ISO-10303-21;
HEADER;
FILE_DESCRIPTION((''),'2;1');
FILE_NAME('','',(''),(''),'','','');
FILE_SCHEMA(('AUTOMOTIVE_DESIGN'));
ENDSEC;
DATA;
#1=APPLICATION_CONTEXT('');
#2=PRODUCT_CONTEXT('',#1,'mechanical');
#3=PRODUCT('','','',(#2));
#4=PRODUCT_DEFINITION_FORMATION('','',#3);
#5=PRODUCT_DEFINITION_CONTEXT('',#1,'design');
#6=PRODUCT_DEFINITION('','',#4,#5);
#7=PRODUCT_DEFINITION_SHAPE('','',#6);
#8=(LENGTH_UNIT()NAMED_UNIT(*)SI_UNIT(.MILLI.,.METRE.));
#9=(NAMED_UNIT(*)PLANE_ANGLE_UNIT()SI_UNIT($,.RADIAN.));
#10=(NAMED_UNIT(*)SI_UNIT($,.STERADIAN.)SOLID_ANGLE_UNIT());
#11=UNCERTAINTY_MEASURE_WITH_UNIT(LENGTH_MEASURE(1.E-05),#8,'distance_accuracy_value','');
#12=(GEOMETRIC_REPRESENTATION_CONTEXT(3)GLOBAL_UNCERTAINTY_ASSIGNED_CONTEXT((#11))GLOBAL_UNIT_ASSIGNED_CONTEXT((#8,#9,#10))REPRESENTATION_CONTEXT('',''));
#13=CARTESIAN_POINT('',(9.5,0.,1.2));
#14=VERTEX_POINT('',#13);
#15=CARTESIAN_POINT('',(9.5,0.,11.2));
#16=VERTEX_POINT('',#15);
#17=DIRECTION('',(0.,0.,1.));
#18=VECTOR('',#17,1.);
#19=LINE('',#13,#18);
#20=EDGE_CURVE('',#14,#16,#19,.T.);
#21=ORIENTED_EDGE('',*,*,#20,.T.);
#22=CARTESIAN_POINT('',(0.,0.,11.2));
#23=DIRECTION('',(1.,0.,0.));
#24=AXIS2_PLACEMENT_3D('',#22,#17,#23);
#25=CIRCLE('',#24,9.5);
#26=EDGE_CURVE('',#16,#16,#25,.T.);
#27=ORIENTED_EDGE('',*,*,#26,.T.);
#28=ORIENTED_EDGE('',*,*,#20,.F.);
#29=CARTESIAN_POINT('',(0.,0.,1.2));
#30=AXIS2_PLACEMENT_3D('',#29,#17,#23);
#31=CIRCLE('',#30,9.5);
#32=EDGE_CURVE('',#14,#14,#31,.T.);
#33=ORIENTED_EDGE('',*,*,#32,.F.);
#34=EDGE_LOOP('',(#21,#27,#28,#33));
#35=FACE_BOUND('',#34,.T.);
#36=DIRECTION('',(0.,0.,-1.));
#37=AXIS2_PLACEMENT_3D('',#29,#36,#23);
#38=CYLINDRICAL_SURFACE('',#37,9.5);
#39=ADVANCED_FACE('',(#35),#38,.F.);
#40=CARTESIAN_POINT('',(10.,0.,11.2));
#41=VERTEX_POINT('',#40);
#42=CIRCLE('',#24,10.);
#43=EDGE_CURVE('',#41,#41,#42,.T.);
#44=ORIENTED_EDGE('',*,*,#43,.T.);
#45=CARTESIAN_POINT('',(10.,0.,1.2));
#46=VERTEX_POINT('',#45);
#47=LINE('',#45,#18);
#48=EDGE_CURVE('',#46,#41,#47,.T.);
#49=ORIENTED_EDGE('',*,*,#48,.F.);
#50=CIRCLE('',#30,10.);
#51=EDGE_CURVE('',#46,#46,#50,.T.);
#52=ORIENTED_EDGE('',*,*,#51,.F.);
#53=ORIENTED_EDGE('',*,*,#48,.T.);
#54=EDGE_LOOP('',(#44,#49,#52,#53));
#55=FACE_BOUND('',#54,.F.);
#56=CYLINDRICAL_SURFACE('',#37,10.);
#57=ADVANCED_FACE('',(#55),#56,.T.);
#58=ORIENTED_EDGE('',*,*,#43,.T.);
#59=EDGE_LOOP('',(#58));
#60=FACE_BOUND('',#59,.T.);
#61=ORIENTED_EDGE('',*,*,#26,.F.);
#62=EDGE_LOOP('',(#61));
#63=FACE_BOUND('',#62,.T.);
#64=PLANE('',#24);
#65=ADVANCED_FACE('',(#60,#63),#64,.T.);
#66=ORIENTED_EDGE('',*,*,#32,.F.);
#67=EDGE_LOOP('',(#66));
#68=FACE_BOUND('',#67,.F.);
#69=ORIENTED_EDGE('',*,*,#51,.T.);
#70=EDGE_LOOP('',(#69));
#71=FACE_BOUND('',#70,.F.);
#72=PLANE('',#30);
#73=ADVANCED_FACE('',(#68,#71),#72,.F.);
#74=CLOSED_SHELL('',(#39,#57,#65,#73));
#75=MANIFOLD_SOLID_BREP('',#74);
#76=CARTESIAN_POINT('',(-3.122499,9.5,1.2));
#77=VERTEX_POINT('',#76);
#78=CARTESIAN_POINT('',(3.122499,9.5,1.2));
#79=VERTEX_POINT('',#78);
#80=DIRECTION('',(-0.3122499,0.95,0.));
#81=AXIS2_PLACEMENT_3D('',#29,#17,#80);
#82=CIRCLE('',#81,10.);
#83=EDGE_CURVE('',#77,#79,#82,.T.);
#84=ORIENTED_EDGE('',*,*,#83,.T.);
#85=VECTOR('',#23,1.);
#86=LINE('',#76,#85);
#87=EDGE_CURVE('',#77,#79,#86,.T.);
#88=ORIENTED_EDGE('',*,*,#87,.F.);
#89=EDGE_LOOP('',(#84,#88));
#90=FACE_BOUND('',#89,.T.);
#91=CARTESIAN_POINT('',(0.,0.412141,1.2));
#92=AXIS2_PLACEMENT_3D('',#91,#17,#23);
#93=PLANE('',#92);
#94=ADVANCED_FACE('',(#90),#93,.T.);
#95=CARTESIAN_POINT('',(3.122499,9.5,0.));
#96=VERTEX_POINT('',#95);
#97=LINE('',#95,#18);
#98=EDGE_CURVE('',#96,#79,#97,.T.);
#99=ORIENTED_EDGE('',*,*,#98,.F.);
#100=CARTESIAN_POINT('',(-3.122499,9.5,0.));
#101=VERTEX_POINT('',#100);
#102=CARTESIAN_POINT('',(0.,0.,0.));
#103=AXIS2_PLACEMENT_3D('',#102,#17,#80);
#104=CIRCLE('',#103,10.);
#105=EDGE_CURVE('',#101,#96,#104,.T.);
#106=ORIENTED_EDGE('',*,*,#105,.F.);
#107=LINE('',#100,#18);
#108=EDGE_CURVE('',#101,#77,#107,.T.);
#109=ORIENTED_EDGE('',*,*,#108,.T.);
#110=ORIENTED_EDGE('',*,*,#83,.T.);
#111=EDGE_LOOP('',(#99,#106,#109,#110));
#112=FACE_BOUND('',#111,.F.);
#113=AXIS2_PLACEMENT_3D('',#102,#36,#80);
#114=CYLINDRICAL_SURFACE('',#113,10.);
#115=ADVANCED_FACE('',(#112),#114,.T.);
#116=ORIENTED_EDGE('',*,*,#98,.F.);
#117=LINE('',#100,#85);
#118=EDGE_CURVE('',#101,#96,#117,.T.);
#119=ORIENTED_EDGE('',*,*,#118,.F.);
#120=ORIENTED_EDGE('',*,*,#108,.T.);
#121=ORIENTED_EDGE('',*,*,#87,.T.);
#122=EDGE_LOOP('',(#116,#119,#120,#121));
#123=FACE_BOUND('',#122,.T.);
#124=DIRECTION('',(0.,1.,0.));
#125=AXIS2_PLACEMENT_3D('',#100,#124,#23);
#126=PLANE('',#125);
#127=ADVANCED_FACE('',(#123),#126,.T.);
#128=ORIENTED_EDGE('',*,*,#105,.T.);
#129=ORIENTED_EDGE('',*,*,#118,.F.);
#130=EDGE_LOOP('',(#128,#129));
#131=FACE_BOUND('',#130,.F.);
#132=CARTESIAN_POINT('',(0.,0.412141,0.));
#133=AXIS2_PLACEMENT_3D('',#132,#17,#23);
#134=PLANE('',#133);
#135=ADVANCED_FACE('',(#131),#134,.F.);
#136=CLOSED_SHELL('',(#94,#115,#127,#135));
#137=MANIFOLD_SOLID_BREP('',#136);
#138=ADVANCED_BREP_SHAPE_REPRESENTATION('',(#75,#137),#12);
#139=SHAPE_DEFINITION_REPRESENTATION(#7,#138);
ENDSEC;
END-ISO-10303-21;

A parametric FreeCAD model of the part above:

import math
import FreeCAD as App
import Part
import Sketcher
from FreeCAD import Vector
Q = App.Units.Quantity

doc = App.newDocument("Part")
body = doc.addObject("PartDesign::Body", "Body")

# Sketch on XY plane
sketch1 = body.newObject("Sketcher::SketchObject", "Sketch")
sketch1.AttachmentSupport = (doc.getObject("XY_Plane"), [""])
sketch1.MapMode = "FlatFace"
sketch1.addGeometry(Part.ArcOfCircle(Part.Circle(Vector(0, 0, 0), Vector(0, 0, 1), 10), math.radians(108), math.radians(432)), False)
sketch1.addGeometry(Part.LineSegment(Vector(3, 10, 0), Vector(-3, 10, 0)), False)
sketch1.addConstraint(Sketcher.Constraint("Coincident", 0, 1, 1, 2))
sketch1.addConstraint(Sketcher.Constraint("Coincident", 1, 1, 0, 2))
sketch1.addConstraint(Sketcher.Constraint("Horizontal", 1))
sketch1.addConstraint(Sketcher.Constraint("Coincident", 0, 3, -1, 1))
sketch1.addConstraint(Sketcher.Constraint("Radius", 0, Q("10 mm")))
sketch1.addConstraint(Sketcher.Constraint("DistanceY", -1, 1, 0, 1, Q("9.5 mm")))
pad1 = body.newObject("PartDesign::Pad", "Pad")
pad1.Profile = sketch1
pad1.Length = 1.2
body2 = doc.addObject("PartDesign::Body", "Body001")

# Sketch on XY plane
sketch2 = body2.newObject("Sketcher::SketchObject", "Sketch001")
sketch2.AttachmentSupport = (doc.getObject("XY_Plane001"), [""])
sketch2.MapMode = "FlatFace"
sketch2.AttachmentOffset = App.Placement(Vector(0, 0, 1.2), App.Rotation())
sketch2.addGeometry(Part.Circle(Vector(0, 0, 0), Vector(0, 0, 1), 10), False)
sketch2.addGeometry(Part.Circle(Vector(0, 0, 0), Vector(0, 0, 1), 10), False)
sketch2.addConstraint(Sketcher.Constraint("Coincident", 0, 3, -1, 1))
sketch2.addConstraint(Sketcher.Constraint("Coincident", 1, 3, -1, 1))
sketch2.addConstraint(Sketcher.Constraint("Diameter", 0, Q("20 mm")))
sketch2.addConstraint(Sketcher.Constraint("Diameter", 1, Q("19 mm")))
pad2 = body2.newObject("PartDesign::Pad", "Pad001")
pad2.Profile = sketch2
pad2.Length = 10

doc.recompute()
